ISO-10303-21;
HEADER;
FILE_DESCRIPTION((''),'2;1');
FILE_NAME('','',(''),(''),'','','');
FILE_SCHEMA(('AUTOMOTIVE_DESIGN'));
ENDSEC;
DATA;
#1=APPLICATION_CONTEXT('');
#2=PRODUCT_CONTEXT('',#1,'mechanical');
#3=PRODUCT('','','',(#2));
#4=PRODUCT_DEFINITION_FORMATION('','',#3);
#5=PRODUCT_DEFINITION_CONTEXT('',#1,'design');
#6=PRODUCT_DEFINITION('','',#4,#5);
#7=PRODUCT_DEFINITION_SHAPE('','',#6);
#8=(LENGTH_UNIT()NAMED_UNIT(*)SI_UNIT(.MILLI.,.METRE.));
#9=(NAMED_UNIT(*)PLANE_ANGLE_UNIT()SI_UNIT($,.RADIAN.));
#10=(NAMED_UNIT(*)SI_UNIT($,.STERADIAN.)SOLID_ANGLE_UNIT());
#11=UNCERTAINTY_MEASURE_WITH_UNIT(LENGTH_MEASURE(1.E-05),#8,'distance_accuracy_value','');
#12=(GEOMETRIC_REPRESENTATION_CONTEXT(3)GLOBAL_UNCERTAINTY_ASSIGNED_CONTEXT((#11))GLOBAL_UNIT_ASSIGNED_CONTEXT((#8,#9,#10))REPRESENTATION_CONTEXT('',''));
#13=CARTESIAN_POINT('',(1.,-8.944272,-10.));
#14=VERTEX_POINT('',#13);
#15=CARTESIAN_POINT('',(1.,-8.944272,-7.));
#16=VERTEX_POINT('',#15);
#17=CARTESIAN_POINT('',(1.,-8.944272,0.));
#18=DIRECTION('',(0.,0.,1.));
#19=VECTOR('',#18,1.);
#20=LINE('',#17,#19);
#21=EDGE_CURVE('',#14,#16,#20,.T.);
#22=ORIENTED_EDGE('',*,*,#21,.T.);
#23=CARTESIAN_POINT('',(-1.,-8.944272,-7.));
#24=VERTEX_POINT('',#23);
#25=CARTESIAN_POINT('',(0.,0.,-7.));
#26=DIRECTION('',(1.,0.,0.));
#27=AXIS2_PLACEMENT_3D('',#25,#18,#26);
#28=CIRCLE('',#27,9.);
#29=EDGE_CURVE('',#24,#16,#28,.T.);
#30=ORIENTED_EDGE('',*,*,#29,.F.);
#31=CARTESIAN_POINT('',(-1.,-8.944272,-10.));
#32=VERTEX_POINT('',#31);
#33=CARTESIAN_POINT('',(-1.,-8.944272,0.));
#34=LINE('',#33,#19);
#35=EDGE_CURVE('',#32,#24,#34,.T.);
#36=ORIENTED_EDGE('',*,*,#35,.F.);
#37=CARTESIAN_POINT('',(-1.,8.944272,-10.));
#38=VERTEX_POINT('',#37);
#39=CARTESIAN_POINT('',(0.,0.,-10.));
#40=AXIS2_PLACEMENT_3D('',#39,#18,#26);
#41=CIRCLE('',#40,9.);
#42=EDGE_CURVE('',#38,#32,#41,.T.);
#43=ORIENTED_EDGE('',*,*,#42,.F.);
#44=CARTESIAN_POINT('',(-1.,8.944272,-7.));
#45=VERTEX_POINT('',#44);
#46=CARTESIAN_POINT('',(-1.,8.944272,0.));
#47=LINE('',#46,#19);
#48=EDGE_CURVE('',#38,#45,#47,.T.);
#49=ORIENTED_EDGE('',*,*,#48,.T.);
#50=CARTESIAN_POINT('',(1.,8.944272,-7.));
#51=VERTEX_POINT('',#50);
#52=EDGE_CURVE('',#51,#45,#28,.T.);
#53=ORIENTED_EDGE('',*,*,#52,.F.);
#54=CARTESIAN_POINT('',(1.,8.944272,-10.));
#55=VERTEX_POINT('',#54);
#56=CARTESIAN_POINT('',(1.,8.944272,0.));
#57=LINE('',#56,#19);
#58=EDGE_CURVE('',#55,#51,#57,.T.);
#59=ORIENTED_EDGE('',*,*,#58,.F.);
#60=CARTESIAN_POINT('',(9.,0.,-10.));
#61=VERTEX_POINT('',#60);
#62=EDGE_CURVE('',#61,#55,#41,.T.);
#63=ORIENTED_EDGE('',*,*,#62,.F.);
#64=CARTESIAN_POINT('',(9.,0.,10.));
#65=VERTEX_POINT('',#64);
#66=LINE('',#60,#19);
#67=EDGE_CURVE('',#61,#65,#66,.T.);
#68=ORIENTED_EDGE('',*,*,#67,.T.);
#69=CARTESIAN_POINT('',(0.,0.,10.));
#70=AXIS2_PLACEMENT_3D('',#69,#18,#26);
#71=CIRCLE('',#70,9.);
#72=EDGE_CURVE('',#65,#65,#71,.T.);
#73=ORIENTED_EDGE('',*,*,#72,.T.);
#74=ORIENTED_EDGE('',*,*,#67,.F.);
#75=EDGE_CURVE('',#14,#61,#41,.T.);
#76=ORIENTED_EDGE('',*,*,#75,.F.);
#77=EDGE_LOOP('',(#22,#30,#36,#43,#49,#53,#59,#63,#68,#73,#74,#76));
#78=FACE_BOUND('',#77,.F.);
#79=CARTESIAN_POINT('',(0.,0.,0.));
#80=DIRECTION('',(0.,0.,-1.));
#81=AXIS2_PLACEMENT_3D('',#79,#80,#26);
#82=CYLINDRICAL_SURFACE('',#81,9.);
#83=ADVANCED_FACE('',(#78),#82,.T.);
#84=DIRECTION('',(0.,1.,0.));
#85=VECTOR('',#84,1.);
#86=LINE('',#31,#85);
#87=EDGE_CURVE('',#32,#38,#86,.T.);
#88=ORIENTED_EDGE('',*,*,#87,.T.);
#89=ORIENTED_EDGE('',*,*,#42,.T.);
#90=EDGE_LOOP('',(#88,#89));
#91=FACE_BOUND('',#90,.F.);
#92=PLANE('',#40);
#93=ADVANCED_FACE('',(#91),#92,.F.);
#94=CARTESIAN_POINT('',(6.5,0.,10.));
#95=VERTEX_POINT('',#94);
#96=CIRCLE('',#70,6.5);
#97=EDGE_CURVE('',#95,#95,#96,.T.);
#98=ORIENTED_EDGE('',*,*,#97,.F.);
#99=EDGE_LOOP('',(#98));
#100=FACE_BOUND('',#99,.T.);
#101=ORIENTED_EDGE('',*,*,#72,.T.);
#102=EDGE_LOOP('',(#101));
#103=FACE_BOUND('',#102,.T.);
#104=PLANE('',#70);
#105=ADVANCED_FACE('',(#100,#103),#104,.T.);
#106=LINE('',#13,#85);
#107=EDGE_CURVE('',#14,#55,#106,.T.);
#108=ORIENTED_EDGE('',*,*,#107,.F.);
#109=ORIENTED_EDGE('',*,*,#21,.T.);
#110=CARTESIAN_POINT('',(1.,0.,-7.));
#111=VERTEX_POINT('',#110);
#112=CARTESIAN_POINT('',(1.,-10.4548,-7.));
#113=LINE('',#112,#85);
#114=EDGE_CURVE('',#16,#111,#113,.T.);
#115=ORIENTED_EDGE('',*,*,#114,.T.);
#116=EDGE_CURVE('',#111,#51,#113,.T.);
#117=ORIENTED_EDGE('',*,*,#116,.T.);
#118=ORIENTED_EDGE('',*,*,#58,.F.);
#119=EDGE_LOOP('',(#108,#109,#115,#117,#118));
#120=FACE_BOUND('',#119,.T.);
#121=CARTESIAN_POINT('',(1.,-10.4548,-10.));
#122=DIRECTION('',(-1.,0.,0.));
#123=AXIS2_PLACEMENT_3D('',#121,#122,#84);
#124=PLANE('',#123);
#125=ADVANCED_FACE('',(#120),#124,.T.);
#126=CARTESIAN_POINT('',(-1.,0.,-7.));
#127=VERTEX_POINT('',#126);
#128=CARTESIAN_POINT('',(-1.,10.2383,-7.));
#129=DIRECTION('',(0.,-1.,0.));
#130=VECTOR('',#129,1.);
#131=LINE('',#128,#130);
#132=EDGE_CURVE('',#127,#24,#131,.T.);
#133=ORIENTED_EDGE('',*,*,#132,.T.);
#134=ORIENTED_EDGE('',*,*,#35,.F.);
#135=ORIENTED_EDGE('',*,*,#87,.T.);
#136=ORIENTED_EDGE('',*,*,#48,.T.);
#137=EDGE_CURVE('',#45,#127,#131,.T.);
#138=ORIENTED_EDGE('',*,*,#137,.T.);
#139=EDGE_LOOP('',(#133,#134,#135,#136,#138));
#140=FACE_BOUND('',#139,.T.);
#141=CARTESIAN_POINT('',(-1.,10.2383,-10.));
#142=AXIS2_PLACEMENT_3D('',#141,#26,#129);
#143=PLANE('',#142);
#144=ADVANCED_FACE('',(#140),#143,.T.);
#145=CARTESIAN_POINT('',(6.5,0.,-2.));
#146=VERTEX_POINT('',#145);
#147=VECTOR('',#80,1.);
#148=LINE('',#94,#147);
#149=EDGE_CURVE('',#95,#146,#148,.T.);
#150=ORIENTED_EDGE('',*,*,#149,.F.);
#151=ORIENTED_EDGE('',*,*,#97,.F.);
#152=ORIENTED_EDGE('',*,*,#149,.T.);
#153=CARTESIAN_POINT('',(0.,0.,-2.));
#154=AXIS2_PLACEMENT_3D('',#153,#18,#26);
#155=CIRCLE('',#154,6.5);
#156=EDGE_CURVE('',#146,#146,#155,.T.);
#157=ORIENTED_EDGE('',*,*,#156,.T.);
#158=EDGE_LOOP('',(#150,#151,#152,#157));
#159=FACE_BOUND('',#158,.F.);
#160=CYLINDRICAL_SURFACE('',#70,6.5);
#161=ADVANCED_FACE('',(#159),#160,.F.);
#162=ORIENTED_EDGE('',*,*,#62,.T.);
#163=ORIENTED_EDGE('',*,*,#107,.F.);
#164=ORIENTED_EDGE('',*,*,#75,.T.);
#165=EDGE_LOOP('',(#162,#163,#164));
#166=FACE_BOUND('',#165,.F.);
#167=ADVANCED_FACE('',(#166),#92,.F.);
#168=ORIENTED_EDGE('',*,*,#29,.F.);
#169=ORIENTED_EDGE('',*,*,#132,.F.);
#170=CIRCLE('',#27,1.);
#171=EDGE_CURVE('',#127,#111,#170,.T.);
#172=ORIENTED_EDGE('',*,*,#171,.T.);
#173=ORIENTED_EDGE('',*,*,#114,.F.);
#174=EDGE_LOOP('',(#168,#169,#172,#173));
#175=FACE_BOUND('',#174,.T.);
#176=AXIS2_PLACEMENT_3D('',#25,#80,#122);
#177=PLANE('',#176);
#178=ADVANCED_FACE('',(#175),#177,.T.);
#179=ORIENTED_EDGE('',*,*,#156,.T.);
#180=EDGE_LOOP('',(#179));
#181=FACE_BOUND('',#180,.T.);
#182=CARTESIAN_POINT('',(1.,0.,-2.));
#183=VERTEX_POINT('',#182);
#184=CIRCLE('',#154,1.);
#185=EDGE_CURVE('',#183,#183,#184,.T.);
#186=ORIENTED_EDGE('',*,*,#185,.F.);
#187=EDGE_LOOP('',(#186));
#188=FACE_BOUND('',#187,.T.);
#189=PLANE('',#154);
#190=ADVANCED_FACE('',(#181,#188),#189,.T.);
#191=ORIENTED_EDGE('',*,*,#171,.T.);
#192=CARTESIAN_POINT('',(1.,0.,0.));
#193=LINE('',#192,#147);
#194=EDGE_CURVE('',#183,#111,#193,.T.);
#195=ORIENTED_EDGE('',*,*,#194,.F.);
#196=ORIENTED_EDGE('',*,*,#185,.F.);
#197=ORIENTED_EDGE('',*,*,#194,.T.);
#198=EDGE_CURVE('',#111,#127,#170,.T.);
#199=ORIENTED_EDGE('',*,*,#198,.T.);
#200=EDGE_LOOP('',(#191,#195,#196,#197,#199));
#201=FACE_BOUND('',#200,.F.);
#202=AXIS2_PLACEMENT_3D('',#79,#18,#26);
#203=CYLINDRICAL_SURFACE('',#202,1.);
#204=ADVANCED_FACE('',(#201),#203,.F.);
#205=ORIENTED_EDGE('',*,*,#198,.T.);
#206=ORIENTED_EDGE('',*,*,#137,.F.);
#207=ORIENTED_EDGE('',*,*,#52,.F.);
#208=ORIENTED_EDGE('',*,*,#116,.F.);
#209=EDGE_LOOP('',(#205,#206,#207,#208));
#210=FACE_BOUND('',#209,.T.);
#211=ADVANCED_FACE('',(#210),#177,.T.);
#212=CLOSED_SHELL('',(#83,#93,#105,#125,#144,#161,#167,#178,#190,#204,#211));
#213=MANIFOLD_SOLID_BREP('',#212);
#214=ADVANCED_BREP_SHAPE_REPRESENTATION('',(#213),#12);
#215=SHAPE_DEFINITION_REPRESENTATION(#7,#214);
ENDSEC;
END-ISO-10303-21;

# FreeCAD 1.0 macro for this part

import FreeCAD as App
import Part
import Sketcher

V = App.Vector


def add_polygon(sketch, points):
    """Adds a closed chain of lines whose ends are joined by coincident constraints."""
    first, n = sketch.GeometryCount, len(points)
    for a, b in zip(points, points[1:] + points[:1]):
        sketch.addGeometry(Part.LineSegment(App.Vector(*a, 0), App.Vector(*b, 0)), False)
    for i in range(n):
        sketch.addConstraint(Sketcher.Constraint("Coincident", first + i, 2, first + (i + 1) % n, 1))

doc = App.newDocument("Part")
body = doc.addObject("PartDesign::Body", "Body")

sketch1 = doc.addObject("Sketcher::SketchObject", "Sketch")
body.addObject(sketch1)
sketch1.AttachmentSupport = (doc.XY_Plane, [""])
sketch1.MapMode = "FlatFace"
sketch1.addGeometry([
    Part.Circle(V(0, 0, 0), V(0, 0, 1), 9),
    Part.Circle(V(0, 0, 0), V(0, 0, 1), 1),
], False)
sketch1.addConstraint([
    Sketcher.Constraint("Coincident", 0, 3, -1, 1),
    Sketcher.Constraint("Coincident", 1, 3, -1, 1),
    Sketcher.Constraint("Diameter", 0, 18.0),
    Sketcher.Constraint("Diameter", 1, 2.0),
])
pad1 = doc.addObject("PartDesign::Pad", "Pad")
body.addObject(pad1)
pad1.Profile = sketch1
pad1.Length = 20
pad1.Midplane = True

sketch2 = doc.addObject("Sketcher::SketchObject", "Sketch001")
body.addObject(sketch2)
sketch2.AttachmentSupport = (doc.XY_Plane, [""])
sketch2.MapMode = "FlatFace"
sketch2.AttachmentOffset = App.Placement(V(0, 0, -10), App.Rotation())
add_polygon(sketch2, [(-1, 10.2), (1, 10.2), (1, -10.5), (-1, -10.5)])
sketch2.addConstraint([
    Sketcher.Constraint("Horizontal", 0),
    Sketcher.Constraint("Vertical", 1),
    Sketcher.Constraint("Horizontal", 2),
    Sketcher.Constraint("Vertical", 3),
    Sketcher.Constraint("DistanceX", 0, 1, 0, 2, 2.0),
    Sketcher.Constraint("DistanceX", -1, 1, 0, 2, 1.0),
    Sketcher.Constraint("DistanceY", 1, 2, 1, 1, 20.693),
    Sketcher.Constraint("DistanceY", -1, 1, 0, 2, 10.2383),
])
pocket1 = doc.addObject("PartDesign::Pocket", "Pocket")
body.addObject(pocket1)
pocket1.Profile = sketch2
pocket1.Length = 3
pocket1.Reversed = True

sketch3 = doc.addObject("Sketcher::SketchObject", "Sketch002")
body.addObject(sketch3)
sketch3.AttachmentSupport = (doc.XY_Plane, [""])
sketch3.MapMode = "FlatFace"
sketch3.AttachmentOffset = App.Placement(V(0, 0, 10), App.Rotation())
sketch3.addGeometry(Part.Circle(V(0, 0, 0), V(0, 0, 1), 6), False)
sketch3.addConstraint([
    Sketcher.Constraint("Coincident", 0, 3, -1, 1),
    Sketcher.Constraint("Diameter", 0, 13.0),
])
pocket2 = doc.addObject("PartDesign::Pocket", "Pocket001")
body.addObject(pocket2)
pocket2.Profile = sketch3
pocket2.Length = 12

doc.recompute()
